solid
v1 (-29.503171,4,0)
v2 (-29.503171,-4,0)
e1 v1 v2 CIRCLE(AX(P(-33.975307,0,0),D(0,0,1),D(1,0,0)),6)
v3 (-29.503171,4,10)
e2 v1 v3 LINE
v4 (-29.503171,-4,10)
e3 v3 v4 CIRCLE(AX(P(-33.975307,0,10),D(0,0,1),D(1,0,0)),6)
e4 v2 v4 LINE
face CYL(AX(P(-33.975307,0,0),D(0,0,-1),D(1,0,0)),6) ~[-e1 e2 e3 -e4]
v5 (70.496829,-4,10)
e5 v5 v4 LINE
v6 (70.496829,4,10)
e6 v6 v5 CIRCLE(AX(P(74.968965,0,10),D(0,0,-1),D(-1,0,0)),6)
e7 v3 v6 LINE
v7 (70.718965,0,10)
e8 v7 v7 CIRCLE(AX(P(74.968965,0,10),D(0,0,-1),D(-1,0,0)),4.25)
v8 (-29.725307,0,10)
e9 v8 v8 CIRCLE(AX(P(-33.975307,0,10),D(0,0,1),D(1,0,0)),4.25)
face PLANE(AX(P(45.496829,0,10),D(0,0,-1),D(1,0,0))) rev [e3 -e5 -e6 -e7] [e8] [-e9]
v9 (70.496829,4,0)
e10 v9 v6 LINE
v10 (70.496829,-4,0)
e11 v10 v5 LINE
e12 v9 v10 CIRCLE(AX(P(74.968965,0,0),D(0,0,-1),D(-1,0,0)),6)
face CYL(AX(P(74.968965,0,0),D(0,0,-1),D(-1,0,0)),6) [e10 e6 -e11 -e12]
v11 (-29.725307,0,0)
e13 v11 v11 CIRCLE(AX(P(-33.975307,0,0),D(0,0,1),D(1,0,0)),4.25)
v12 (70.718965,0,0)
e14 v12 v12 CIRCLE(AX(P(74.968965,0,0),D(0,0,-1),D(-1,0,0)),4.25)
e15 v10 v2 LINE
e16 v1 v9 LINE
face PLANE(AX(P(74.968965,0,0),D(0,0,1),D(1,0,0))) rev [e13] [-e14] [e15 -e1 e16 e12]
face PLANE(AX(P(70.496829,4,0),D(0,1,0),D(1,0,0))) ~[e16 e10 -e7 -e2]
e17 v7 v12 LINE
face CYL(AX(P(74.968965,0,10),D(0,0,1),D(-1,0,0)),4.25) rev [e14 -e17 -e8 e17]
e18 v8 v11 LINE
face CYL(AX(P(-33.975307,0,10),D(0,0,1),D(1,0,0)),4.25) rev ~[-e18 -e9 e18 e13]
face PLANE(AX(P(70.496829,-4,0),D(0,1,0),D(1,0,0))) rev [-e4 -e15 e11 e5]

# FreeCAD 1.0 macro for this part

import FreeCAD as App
import Part
import Sketcher

V = App.Vector


def add_polygon(sketch, points):
    """Adds a closed chain of lines whose ends are joined by coincident constraints."""
    first, n = sketch.GeometryCount, len(points)
    for a, b in zip(points, points[1:] + points[:1]):
        sketch.addGeometry(Part.LineSegment(App.Vector(*a, 0), App.Vector(*b, 0)), False)
    for i in range(n):
        sketch.addConstraint(Sketcher.Constraint("Coincident", first + i, 2, first + (i + 1) % n, 1))

doc = App.newDocument("Part")
body = doc.addObject("PartDesign::Body", "Body")

sketch1 = body.newObject("Sketcher::SketchObject", "Sketch")
sketch1.AttachmentSupport = (doc.getObject("XY_Plane"), [""])
sketch1.MapMode = "FlatFace"
sketch1.addGeometry(Part.Circle(V(-34, 0, 0), V(0, 0, 1), 6), False)
sketch1.addConstraint(Sketcher.Constraint("PointOnObject", 0, 3, -1))
sketch1.addConstraint(Sketcher.Constraint("Diameter", 0, 12.0))
sketch1.addConstraint(Sketcher.Constraint("DistanceX", 0, 3, -1, 1, 33.975307))
pad1 = body.newObject("PartDesign::Pad", "Pad")
pad1.Profile = sketch1
pad1.Length = 10

sketch2 = body.newObject("Sketcher::SketchObject", "Sketch001")
sketch2.AttachmentSupport = (doc.getObject("XY_Plane"), [""])
sketch2.MapMode = "FlatFace"
sketch2.AttachmentOffset = App.Placement(V(0, 0, 10), App.Rotation())
sketch2.addGeometry(Part.Circle(V(-34, 0, 0), V(0, 0, 1), 4.2), False)
sketch2.addConstraint(Sketcher.Constraint("PointOnObject", 0, 3, -1))
sketch2.addConstraint(Sketcher.Constraint("Diameter", 0, 8.5))
sketch2.addConstraint(Sketcher.Constraint("DistanceX", 0, 3, -1, 1, 33.975307))
pocket1 = body.newObject("PartDesign::Pocket", "Pocket")
pocket1.Profile = sketch2
pocket1.Length = 10

sketch3 = body.newObject("Sketcher::SketchObject", "Sketch002")
sketch3.AttachmentSupport = (doc.getObject("XY_Plane"), [""])
sketch3.MapMode = "FlatFace"
add_polygon(sketch3, [(-30, -4), (-30, 4), (20, 4), (20, -4)])
sketch3.addConstraint(Sketcher.Constraint("Vertical", 0))
sketch3.addConstraint(Sketcher.Constraint("Horizontal", 1))
sketch3.addConstraint(Sketcher.Constraint("Vertical", 2))
sketch3.addConstraint(Sketcher.Constraint("Horizontal", 3))
sketch3.addConstraint(Sketcher.Constraint("DistanceX", 1, 1, 1, 2, 50.0))
sketch3.addConstraint(Sketcher.Constraint("DistanceY", 0, 1, 0, 2, 8.0))
sketch3.addConstraint(Sketcher.Constraint("DistanceY", -1, 1, 0, 2, 4.0))
sketch3.addConstraint(Sketcher.Constraint("DistanceX", 0, 2, -1, 1, 29.503171))
pad2 = body.newObject("PartDesign::Pad", "Pad001")
pad2.Profile = sketch3
pad2.Length = 10
body2 = doc.addObject("PartDesign::Body", "Body001")
doc.recompute()

body2.BaseFeature = body
doc.recompute()

mirroring = doc.addObject("Part::Mirroring", "Mirroring")
mirroring.Source = body
mirroring.Base = V(20.496829, 0, 5)
mirroring.Normal = V(1, 0, 0)
body3 = doc.addObject("PartDesign::Body", "Body002")
body3.BaseFeature = mirroring
boolean = body2.newObject("PartDesign::Boolean", "Boolean")
boolean.Type = "Fuse"
boolean.addObjects([body3])
doc.recompute()
mirroring.Visibility = False

doc.recompute()
